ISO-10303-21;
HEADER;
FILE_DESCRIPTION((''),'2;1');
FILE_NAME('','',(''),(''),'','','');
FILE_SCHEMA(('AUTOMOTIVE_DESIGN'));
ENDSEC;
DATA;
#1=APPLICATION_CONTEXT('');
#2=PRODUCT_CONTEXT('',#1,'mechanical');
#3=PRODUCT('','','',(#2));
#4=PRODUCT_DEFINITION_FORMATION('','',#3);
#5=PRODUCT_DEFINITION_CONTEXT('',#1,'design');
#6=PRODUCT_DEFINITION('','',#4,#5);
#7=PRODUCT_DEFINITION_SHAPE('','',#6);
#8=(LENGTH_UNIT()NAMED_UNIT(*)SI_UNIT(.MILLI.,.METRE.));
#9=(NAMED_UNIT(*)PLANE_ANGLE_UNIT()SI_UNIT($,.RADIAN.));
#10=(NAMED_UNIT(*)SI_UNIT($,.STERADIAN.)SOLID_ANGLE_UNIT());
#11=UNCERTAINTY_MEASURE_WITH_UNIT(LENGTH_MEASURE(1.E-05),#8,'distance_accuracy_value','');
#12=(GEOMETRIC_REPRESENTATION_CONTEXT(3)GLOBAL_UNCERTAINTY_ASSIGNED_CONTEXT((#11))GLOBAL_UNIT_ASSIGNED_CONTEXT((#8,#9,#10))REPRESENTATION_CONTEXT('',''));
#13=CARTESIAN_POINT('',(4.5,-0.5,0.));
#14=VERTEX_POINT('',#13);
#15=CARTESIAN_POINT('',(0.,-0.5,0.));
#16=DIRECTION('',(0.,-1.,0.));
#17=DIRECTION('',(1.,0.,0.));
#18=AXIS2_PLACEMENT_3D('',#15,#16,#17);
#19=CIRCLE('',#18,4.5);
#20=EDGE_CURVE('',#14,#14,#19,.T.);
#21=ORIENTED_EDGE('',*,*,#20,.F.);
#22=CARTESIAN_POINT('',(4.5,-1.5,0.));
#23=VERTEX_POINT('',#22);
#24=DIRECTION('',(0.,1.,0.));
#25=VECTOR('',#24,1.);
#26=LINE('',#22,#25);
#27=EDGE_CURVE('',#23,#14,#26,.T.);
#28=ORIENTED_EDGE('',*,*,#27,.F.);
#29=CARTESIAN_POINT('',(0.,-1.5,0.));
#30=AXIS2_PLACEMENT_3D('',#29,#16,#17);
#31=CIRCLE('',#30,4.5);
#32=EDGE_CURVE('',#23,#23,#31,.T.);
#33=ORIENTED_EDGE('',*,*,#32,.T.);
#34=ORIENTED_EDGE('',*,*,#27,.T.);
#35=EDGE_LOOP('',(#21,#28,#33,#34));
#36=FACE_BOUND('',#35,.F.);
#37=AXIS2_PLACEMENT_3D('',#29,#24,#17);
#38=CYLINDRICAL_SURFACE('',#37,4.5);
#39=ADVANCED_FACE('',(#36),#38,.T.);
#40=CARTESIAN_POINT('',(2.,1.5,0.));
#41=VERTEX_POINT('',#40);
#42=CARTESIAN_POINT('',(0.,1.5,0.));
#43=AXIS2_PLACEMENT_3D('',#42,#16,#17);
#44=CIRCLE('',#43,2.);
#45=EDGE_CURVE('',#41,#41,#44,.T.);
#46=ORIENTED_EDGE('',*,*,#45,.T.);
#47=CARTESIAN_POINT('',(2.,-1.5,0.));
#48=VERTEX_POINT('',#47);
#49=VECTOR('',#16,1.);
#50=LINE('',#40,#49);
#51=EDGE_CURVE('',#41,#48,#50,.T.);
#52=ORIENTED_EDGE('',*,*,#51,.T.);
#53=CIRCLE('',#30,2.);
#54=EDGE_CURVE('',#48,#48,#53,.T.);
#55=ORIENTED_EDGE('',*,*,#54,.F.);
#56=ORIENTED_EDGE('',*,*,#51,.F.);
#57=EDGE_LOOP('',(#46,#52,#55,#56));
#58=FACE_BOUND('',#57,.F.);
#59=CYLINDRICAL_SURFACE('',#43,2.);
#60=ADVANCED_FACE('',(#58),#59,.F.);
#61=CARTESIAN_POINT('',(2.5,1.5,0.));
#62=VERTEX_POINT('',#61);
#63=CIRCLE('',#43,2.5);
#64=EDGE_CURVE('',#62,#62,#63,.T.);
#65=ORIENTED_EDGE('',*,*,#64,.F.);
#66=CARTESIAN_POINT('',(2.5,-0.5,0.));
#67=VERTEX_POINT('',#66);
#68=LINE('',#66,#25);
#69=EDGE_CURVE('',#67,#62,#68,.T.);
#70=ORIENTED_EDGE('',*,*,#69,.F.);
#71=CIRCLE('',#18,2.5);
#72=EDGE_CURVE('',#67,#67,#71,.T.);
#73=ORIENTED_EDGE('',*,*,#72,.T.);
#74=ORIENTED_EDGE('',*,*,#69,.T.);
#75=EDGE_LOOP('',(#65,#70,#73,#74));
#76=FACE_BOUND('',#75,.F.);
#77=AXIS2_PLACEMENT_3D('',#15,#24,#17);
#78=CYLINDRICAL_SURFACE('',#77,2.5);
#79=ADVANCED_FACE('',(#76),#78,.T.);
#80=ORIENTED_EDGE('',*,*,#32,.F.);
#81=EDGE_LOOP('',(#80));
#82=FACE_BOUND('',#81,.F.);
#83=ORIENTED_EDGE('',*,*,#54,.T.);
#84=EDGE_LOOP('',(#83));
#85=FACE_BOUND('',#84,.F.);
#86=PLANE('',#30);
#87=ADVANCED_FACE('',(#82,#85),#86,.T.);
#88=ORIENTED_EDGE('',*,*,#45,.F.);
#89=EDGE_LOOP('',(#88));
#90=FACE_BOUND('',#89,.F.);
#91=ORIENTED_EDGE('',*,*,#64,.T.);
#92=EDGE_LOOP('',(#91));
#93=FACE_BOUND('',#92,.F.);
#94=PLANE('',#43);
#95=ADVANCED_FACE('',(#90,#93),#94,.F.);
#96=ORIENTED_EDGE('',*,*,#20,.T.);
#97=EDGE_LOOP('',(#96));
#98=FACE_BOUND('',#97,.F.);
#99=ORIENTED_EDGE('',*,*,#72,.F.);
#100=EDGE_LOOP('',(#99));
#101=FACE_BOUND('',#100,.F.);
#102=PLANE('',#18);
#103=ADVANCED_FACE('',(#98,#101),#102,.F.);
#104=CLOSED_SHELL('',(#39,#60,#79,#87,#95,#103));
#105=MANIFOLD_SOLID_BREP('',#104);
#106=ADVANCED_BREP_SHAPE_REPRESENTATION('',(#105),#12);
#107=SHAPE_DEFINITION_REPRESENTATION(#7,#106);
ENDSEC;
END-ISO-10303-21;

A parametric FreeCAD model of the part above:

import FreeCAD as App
import Part
import Sketcher
from FreeCAD import Vector
Q = App.Units.Quantity

doc = App.newDocument("Part")
body = doc.addObject("PartDesign::Body", "Body")

sketch1 = body.newObject("Sketcher::SketchObject", "Sketch")
sketch1.AttachmentSupport = (doc.getObject("XY_Plane"), [""])
sketch1.MapMode = "FlatFace"
sketch1.addGeometry([
    Part.LineSegment(Vector(2.5, 1.5, 0), Vector(2, 1.5, 0)),
    Part.LineSegment(Vector(2, 1.5, 0), Vector(2, -1.5, 0)),
    Part.LineSegment(Vector(2, -1.5, 0), Vector(4.5, -1.5, 0)),
    Part.LineSegment(Vector(4.5, -1.5, 0), Vector(4.5, -0.5, 0)),
    Part.LineSegment(Vector(4.5, -0.5, 0), Vector(2.5, -0.5, 0)),
    Part.LineSegment(Vector(2.5, -0.5, 0), Vector(2.5, 1.5, 0)),
], False)
sketch1.addConstraint([
    Sketcher.Constraint("Coincident", 0, 2, 1, 1),
    Sketcher.Constraint("Coincident", 1, 2, 2, 1),
    Sketcher.Constraint("Coincident", 2, 2, 3, 1),
    Sketcher.Constraint("Coincident", 3, 2, 4, 1),
    Sketcher.Constraint("Coincident", 4, 2, 5, 1),
    Sketcher.Constraint("Coincident", 5, 2, 0, 1),
    Sketcher.Constraint("Horizontal", 0),
    Sketcher.Constraint("Vertical", 1),
    Sketcher.Constraint("Horizontal", 2),
    Sketcher.Constraint("Vertical", 3),
    Sketcher.Constraint("Horizontal", 4),
    Sketcher.Constraint("Vertical", 5),
    Sketcher.Constraint("Equal", 4, 5),
    Sketcher.Constraint("DistanceX", 4, 2, 4, 1, Q("2 mm")),
    Sketcher.Constraint("DistanceY", 3, 1, 3, 2, Q("1 mm")),
    Sketcher.Constraint("DistanceX", -1, 1, 0, 2, Q("2 mm")),
    Sketcher.Constraint("DistanceX", 0, 2, 0, 1, Q("0.5 mm")),
    Sketcher.Constraint("DistanceY", -1, 1, 0, 2, Q("1.5 mm")),
])
revolution = body.newObject("PartDesign::Revolution", "Revolution")
revolution.Profile = sketch1
revolution.ReferenceAxis = (sketch1, ["V_Axis"])
revolution.Angle = 360

doc.recompute()
